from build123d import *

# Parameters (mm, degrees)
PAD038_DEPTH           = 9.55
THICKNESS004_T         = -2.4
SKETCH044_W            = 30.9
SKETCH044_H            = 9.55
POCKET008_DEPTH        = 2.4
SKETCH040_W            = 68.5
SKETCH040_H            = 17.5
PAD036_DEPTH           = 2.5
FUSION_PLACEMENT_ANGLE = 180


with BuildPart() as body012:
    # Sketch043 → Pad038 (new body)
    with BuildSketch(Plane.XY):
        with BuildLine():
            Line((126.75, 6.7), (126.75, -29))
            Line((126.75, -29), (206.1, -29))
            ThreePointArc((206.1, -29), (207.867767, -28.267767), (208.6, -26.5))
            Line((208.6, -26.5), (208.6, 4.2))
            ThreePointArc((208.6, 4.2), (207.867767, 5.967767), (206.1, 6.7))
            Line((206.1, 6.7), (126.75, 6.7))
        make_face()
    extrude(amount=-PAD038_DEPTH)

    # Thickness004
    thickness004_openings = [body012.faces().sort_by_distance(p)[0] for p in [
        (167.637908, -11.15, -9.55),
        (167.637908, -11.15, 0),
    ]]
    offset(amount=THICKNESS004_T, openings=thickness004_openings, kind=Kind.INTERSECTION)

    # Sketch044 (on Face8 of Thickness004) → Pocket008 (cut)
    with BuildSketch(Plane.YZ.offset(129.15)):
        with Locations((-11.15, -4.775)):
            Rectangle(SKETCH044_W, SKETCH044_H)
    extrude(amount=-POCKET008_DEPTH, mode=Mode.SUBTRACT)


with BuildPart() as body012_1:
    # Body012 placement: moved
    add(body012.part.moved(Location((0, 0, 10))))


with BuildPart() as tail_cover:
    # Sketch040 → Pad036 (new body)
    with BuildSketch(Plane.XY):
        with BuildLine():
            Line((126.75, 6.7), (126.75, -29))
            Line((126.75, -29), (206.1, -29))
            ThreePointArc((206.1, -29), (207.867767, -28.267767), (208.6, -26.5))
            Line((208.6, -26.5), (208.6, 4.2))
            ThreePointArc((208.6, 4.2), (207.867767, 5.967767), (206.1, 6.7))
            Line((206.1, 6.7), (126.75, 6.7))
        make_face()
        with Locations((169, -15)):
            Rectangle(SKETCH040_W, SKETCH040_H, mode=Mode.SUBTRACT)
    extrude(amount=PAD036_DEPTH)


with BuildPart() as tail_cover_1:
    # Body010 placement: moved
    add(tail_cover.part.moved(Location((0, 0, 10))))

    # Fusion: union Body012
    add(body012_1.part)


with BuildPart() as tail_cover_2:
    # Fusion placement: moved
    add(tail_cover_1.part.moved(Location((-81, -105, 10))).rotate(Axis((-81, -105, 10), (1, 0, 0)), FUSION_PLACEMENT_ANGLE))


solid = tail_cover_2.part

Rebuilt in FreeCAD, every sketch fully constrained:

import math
import FreeCAD as App
import Part
import Sketcher

V = App.Vector


def faces_at(feature, points):
    """Names of the faces that lie closest to the given points."""
    faces = feature.Shape.Faces
    near = lambda p: min(range(len(faces)), key=lambda i: faces[i].distToShape(Part.Vertex(*p))[0])
    return sorted({f"Face{near(p) + 1}" for p in points})


def add_polygon(sketch, points):
    """Adds a closed chain of lines whose ends are joined by coincident constraints."""
    first, n = sketch.GeometryCount, len(points)
    for a, b in zip(points, points[1:] + points[:1]):
        sketch.addGeometry(Part.LineSegment(App.Vector(*a, 0), App.Vector(*b, 0)), False)
    for i in range(n):
        sketch.addConstraint(Sketcher.Constraint("Coincident", first + i, 2, first + (i + 1) % n, 1))

doc = App.newDocument("Part")
body = doc.addObject("PartDesign::Body", "Body")

# Sketch on XY plane
sketch1 = body.newObject("Sketcher::SketchObject", "Sketch")
sketch1.AttachmentSupport = (doc.getObject("XY_Plane"), [""])
sketch1.MapMode = "FlatFace"
sketch1.addGeometry([
    Part.LineSegment(V(126.75, 6.7, 0), V(126.75, -29, 0)),  # 0
    Part.LineSegment(V(126.75, -29, 0), V(206.1, -29, 0)),  # 1
    Part.ArcOfCircle(Part.Circle(V(206.1, -26.5, 0), V(0, 0, 1), 2.5), math.radians(-90.000004), math.radians(0.000004)),  # 2
    Part.LineSegment(V(208.6, -26.5, 0), V(208.6, 4.2, 0)),  # 3
    Part.ArcOfCircle(Part.Circle(V(206.1, 4.2, 0), V(0, 0, 1), 2.5), math.radians(-0.000004), math.radians(90.000004)),  # 4
    Part.LineSegment(V(206.1, 6.7, 0), V(126.75, 6.7, 0)),  # 5
], False)
sketch1.addConstraint([
    Sketcher.Constraint("Coincident", 0, 2, 1, 1),
    Sketcher.Constraint("Tangent", 1, 2, 2, 1),
    Sketcher.Constraint("Tangent", 2, 2, 3, 1),
    Sketcher.Constraint("Tangent", 3, 2, 4, 1),
    Sketcher.Constraint("Tangent", 4, 2, 5, 1),
    Sketcher.Constraint("Coincident", 5, 2, 0, 1),
    Sketcher.Constraint("Vertical", 0),
    Sketcher.Constraint("Horizontal", 1),
    Sketcher.Constraint("Vertical", 3),
    Sketcher.Constraint("Horizontal", 5),
    Sketcher.Constraint("Equal", 2, 4),
    Sketcher.Constraint("Radius", 2, 2.5),
    Sketcher.Constraint("DistanceY", 0, 2, 0, 1, 35.7),
    Sketcher.Constraint("DistanceY", 0, 2, -1, 1, 29.0),
    Sketcher.Constraint("DistanceX", 1, 1, 1, 2, 79.35),
    Sketcher.Constraint("DistanceX", -1, 1, 2, 3, 206.1),
])
pad1 = body.newObject("PartDesign::Pad", "Pad")
pad1.Profile = sketch1
pad1.Length = 9.55
pad1.Reversed = True
doc.recompute()

thickness = body.newObject("PartDesign::Thickness", "Thickness")
thickness.Base = (pad1, faces_at(pad1, [(167.675, -11.15, -9.55), (167.675, -11.15, 0)]))
thickness.Value = 2.4
thickness.Reversed = True
thickness.Join = "Intersection"

# Sketch on YZ plane
sketch2 = body.newObject("Sketcher::SketchObject", "Sketch001")
sketch2.AttachmentSupport = (doc.getObject("YZ_Plane"), [""])
sketch2.MapMode = "FlatFace"
sketch2.AttachmentOffset = App.Placement(V(0, 0, 129.15), App.Rotation())
add_polygon(sketch2, [(-26.6, 0), (-26.6, -9.55), (4.3, -9.55), (4.3, 0)])  # lines 0-3
sketch2.addConstraint([
    Sketcher.Constraint("Vertical", 0),
    Sketcher.Constraint("Horizontal", 1),
    Sketcher.Constraint("Vertical", 2),
    Sketcher.Constraint("Horizontal", 3),
    Sketcher.Constraint("PointOnObject", 2, 2, -1),
    Sketcher.Constraint("DistanceX", 1, 1, 1, 2, 30.9),
    Sketcher.Constraint("DistanceY", 0, 2, 0, 1, 9.55),
    Sketcher.Constraint("DistanceX", 0, 2, -1, 1, 26.6),
])
pocket1 = body.newObject("PartDesign::Pocket", "Pocket")
pocket1.Profile = sketch2
pocket1.Length = 2.4
body2 = doc.addObject("PartDesign::Body", "Body001")
doc.recompute()

body.Placement = App.Placement(V(0, 0, 10), App.Rotation(V(0, 0, 1), 0))
boolean = body2.newObject("PartDesign::Boolean", "Boolean")
boolean.Type = "Fuse"
boolean.addObjects([body])
body3 = doc.addObject("PartDesign::Body", "Body002")

# Sketch on XY plane
sketch3 = body3.newObject("Sketcher::SketchObject", "Sketch002")
sketch3.AttachmentSupport = (doc.getObject("XY_Plane002"), [""])
sketch3.MapMode = "FlatFace"
sketch3.addGeometry(Part.LineSegment(V(126.75, 6.7, 0), V(126.75, -29, 0)), False)  # 0
sketch3.addGeometry(Part.LineSegment(V(126.75, -29, 0), V(206.1, -29, 0)), False)  # 1
sketch3.addGeometry(Part.ArcOfCircle(Part.Circle(V(206.1, -26.5, 0), V(0, 0, 1), 2.5), math.radians(-90.000004), math.radians(0.000004)), False)  # 2
sketch3.addGeometry(Part.LineSegment(V(208.6, -26.5, 0), V(208.6, 4.2, 0)), False)  # 3
sketch3.addGeometry(Part.ArcOfCircle(Part.Circle(V(206.1, 4.2, 0), V(0, 0, 1), 2.5), math.radians(-0.000004), math.radians(90.000004)), False)  # 4
sketch3.addGeometry(Part.LineSegment(V(206.1, 6.7, 0), V(126.75, 6.7, 0)), False)  # 5
add_polygon(sketch3, [(203.25, -23.75), (134.75, -23.75), (134.75, -6.25), (203.25, -6.25)])  # lines 6-9
sketch3.addConstraint([
    Sketcher.Constraint("Coincident", 0, 2, 1, 1),
    Sketcher.Constraint("Tangent", 1, 2, 2, 1),
    Sketcher.Constraint("Tangent", 2, 2, 3, 1),
    Sketcher.Constraint("Tangent", 3, 2, 4, 1),
    Sketcher.Constraint("Tangent", 4, 2, 5, 1),
    Sketcher.Constraint("Coincident", 5, 2, 0, 1),
    Sketcher.Constraint("Vertical", 0),
    Sketcher.Constraint("Horizontal", 1),
    Sketcher.Constraint("Vertical", 3),
    Sketcher.Constraint("Horizontal", 5),
    Sketcher.Constraint("Horizontal", 6),
    Sketcher.Constraint("Vertical", 7),
    Sketcher.Constraint("Horizontal", 8),
    Sketcher.Constraint("Vertical", 9),
    Sketcher.Constraint("Equal", 2, 4),
    Sketcher.Constraint("Radius", 2, 2.5),
    Sketcher.Constraint("DistanceX", 6, 2, 6, 1, 68.5),
    Sketcher.Constraint("DistanceY", 0, 2, 0, 1, 35.7),
    Sketcher.Constraint("DistanceY", 7, 1, 7, 2, 17.5),
    Sketcher.Constraint("DistanceY", 0, 2, -1, 1, 29.0),
    Sketcher.Constraint("DistanceX", 0, 2, 6, 2, 8.0),
    Sketcher.Constraint("DistanceX", 1, 1, 1, 2, 79.35),
    Sketcher.Constraint("DistanceX", -1, 1, 2, 3, 206.1),
    Sketcher.Constraint("DistanceY", 6, 2, -1, 1, 23.75),
])
pad2 = body3.newObject("PartDesign::Pad", "Pad001")
pad2.Profile = sketch3
pad2.Length = 2.5
body4 = doc.addObject("PartDesign::Body", "Body003")
doc.recompute()

body3.Placement = App.Placement(V(0, 0, 10), App.Rotation(V(0, 0, 1), 0))
boolean2 = body4.newObject("PartDesign::Boolean", "Boolean001")
boolean2.Type = "Fuse"
boolean2.addObjects([body3])
doc.recompute()

boolean3 = body4.newObject("PartDesign::Boolean", "Boolean002")
boolean3.Type = "Fuse"
boolean3.addObjects([body2])
body5 = doc.addObject("PartDesign::Body", "Body004")
doc.recompute()

body4.Placement = App.Placement(V(-81, -105, 10), App.Rotation(V(1, 0, 0), 180))
boolean4 = body5.newObject("PartDesign::Boolean", "Boolean003")
boolean4.Type = "Fuse"
boolean4.addObjects([body4])

doc.recompute()
